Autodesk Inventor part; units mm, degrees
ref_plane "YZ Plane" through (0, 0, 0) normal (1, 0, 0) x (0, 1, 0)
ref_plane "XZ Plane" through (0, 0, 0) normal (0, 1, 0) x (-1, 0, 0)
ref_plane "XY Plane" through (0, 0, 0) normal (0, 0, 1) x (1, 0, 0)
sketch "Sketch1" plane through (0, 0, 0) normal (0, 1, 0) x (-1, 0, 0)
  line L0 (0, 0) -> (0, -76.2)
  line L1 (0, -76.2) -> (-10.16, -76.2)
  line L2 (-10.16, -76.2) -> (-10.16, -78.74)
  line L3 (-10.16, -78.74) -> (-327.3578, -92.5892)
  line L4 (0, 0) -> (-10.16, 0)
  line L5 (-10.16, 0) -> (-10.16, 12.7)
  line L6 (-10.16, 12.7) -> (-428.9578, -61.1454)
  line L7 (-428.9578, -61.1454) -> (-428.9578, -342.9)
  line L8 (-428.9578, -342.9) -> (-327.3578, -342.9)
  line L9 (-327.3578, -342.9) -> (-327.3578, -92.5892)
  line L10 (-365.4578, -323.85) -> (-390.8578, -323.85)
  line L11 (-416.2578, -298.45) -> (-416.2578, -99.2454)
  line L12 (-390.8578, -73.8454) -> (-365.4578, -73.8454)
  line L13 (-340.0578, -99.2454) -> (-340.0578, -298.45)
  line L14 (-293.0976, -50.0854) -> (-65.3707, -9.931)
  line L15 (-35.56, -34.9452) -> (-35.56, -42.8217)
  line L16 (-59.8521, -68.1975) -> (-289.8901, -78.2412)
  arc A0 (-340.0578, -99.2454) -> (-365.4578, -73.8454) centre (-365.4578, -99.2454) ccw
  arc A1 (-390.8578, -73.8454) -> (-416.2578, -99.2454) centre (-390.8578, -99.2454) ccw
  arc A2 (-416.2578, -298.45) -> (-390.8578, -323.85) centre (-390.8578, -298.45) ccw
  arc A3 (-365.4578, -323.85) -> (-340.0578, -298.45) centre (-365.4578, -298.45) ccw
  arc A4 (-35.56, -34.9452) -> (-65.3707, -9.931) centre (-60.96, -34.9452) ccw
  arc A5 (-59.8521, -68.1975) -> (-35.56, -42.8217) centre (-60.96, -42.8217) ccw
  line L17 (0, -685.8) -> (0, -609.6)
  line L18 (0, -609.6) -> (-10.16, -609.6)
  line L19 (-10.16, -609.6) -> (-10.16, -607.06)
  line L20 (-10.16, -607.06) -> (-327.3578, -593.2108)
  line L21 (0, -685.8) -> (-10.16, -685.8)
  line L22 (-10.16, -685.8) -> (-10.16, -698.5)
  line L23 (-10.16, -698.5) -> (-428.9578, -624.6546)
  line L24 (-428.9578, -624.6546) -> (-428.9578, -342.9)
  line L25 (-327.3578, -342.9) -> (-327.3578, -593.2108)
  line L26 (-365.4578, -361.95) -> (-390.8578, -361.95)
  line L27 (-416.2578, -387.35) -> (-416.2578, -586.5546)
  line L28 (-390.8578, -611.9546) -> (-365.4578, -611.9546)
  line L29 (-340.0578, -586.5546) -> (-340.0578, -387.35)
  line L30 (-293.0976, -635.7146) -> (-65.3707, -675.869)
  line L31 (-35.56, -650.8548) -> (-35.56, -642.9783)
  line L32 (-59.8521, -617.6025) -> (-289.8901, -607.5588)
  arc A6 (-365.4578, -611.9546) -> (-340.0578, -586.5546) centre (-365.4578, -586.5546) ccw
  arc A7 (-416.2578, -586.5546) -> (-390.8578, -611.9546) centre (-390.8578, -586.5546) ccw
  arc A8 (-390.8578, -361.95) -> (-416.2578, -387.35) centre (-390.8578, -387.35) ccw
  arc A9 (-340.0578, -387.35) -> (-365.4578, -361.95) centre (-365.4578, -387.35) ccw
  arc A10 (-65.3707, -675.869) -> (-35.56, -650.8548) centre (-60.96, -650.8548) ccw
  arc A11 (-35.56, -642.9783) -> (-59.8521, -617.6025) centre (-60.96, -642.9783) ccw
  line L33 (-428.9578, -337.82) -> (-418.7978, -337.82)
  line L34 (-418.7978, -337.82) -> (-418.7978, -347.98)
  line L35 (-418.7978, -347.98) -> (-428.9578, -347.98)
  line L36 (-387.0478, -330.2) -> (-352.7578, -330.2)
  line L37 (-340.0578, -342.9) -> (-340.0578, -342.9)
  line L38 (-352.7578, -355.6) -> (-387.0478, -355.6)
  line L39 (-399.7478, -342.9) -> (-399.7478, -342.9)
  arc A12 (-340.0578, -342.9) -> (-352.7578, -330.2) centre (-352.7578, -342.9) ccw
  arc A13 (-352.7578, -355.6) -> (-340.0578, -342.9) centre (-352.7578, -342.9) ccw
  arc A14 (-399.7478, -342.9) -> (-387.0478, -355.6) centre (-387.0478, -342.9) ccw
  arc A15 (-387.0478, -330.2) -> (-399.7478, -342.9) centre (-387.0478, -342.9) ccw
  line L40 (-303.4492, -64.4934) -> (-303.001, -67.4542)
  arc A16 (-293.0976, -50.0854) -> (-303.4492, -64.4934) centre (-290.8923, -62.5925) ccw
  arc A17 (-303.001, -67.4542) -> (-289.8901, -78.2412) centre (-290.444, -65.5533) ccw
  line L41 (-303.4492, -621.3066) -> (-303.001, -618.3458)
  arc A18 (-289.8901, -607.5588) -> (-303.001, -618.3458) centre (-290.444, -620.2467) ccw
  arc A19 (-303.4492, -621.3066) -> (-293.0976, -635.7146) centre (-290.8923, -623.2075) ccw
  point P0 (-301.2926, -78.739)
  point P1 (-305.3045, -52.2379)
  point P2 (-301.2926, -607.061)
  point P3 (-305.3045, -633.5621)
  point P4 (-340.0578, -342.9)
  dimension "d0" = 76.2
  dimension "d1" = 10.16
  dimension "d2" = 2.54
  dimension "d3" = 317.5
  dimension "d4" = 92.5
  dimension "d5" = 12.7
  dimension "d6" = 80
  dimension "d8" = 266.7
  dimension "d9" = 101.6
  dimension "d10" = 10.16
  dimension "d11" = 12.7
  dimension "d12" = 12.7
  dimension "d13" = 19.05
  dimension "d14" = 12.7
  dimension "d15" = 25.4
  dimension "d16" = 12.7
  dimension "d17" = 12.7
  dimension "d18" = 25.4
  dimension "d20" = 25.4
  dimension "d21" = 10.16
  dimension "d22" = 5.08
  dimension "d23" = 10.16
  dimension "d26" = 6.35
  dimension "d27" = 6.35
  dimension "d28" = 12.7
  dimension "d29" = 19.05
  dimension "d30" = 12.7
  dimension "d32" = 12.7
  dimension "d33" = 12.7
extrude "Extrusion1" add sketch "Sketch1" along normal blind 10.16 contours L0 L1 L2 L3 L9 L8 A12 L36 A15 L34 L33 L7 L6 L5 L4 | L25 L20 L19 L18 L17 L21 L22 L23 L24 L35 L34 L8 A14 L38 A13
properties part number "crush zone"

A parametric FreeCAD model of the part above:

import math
import FreeCAD as App
import Part
import Sketcher
Q = App.Units.Quantity


def add_polygon(sketch, points):
    """Adds a closed chain of lines whose ends are joined by coincident constraints."""
    first, n = sketch.GeometryCount, len(points)
    for a, b in zip(points, points[1:] + points[:1]):
        sketch.addGeometry(Part.LineSegment(App.Vector(*a, 0), App.Vector(*b, 0)), False)
    for i in range(n):
        sketch.addConstraint(Sketcher.Constraint("Coincident", first + i, 2, first + (i + 1) % n, 1))

doc = App.newDocument("Part")
body = doc.addObject("PartDesign::Body", "Body")

sketch1 = doc.addObject("Sketcher::SketchObject", "Sketch")
body.addObject(sketch1)
sketch1.AttachmentSupport = (doc.XZ_Plane, [""])
sketch1.MapMode = "FlatFace"
add_polygon(sketch1, [(0, -76.2), (0, 0), (10.16, 0), (10.16, 12.7), (428.9578, -61.1454), (428.9578, -337.82), (418.7978, -337.82), (418.7978, -347.98), (428.9578, -347.98), (428.9578, -624.6546), (10.16, -698.5), (10.16, -685.8), (0, -685.8), (0, -609.6), (10.16, -609.6), (10.16, -607.06), (327.3578, -593.2108), (327.3578, -92.5892), (10.16, -78.74), (10.16, -76.2)])
sketch1.addGeometry(Part.ArcOfCircle(Part.Circle(App.Vector(352.7578, -342.9, 0), App.Vector(0, 0, 1), 12.7), math.radians(90), math.radians(270)), False)
sketch1.addGeometry(Part.LineSegment(App.Vector(352.7578, -355.6, 0), App.Vector(387.0478, -355.6, 0)), False)
sketch1.addGeometry(Part.ArcOfCircle(Part.Circle(App.Vector(387.0478, -342.9, 0), App.Vector(0, 0, 1), 12.7), math.radians(-90), math.radians(90)), False)
sketch1.addGeometry(Part.LineSegment(App.Vector(387.0478, -330.2, 0), App.Vector(352.7578, -330.2, 0)), False)
sketch1.addGeometry(Part.ArcOfCircle(Part.Circle(App.Vector(365.4578, -298.45, 0), App.Vector(0, 0, 1), 25.4), math.radians(180), math.radians(270)), False)
sketch1.addGeometry(Part.LineSegment(App.Vector(365.4578, -323.85, 0), App.Vector(390.8578, -323.85, 0)), False)
sketch1.addGeometry(Part.ArcOfCircle(Part.Circle(App.Vector(390.8578, -298.45, 0), App.Vector(0, 0, 1), 25.4), math.radians(-90), math.radians(0)), False)
sketch1.addGeometry(Part.LineSegment(App.Vector(416.2578, -298.45, 0), App.Vector(416.2578, -99.2454, 0)), False)
sketch1.addGeometry(Part.ArcOfCircle(Part.Circle(App.Vector(390.8578, -99.2454, 0), App.Vector(0, 0, 1), 25.4), math.radians(0), math.radians(90)), False)
sketch1.addGeometry(Part.LineSegment(App.Vector(390.8578, -73.8454, 0), App.Vector(365.4578, -73.8454, 0)), False)
sketch1.addGeometry(Part.ArcOfCircle(Part.Circle(App.Vector(365.4578, -99.2454, 0), App.Vector(0, 0, 1), 25.4), math.radians(90), math.radians(180)), False)
sketch1.addGeometry(Part.LineSegment(App.Vector(340.0578, -99.2454, 0), App.Vector(340.0578, -298.45, 0)), False)
sketch1.addGeometry(Part.ArcOfCircle(Part.Circle(App.Vector(290.8923, -62.5925, 0), App.Vector(0, 0, 1), 12.700035), math.radians(-8.608241), math.radians(80.000174)), False)
sketch1.addGeometry(Part.LineSegment(App.Vector(293.0976, -50.0854, 0), App.Vector(65.3707, -9.931, 0)), False)
sketch1.addGeometry(Part.ArcOfCircle(Part.Circle(App.Vector(60.96, -34.9452, 0), App.Vector(0, 0, 1), 25.4), math.radians(79.999952), math.radians(180)), False)
sketch1.addGeometry(Part.LineSegment(App.Vector(35.56, -34.9452, 0), App.Vector(35.56, -42.8217, 0)), False)
sketch1.addGeometry(Part.ArcOfCircle(Part.Circle(App.Vector(60.96, -42.8217, 0), App.Vector(0, 0, 1), 25.399974), math.radians(180), math.radians(267.500071)), False)
sketch1.addGeometry(Part.LineSegment(App.Vector(59.8521, -68.1975, 0), App.Vector(289.8901, -78.2412, 0)), False)
sketch1.addGeometry(Part.ArcOfCircle(Part.Circle(App.Vector(290.444, -65.5533, 0), App.Vector(0, 0, 1), 12.700066), math.radians(-92.499704), math.radians(-8.608173)), False)
sketch1.addGeometry(Part.LineSegment(App.Vector(303.001, -67.4542, 0), App.Vector(303.4492, -64.4934, 0)), False)
sketch1.addGeometry(Part.LineSegment(App.Vector(303.4492, -621.3066, 0), App.Vector(303.001, -618.3458, 0)), False)
sketch1.addGeometry(Part.ArcOfCircle(Part.Circle(App.Vector(290.444, -620.2467, 0), App.Vector(0, 0, 1), 12.699985), math.radians(8.608173), math.radians(92.499704)), False)
sketch1.addGeometry(Part.LineSegment(App.Vector(289.8901, -607.5588, 0), App.Vector(59.8521, -617.6025, 0)), False)
sketch1.addGeometry(Part.ArcOfCircle(Part.Circle(App.Vector(60.96, -642.9783, 0), App.Vector(0, 0, 1), 25.4), math.radians(92.499929), math.radians(180)), False)
sketch1.addGeometry(Part.LineSegment(App.Vector(35.56, -642.9783, 0), App.Vector(35.56, -650.8548, 0)), False)
sketch1.addGeometry(Part.ArcOfCircle(Part.Circle(App.Vector(60.96, -650.8548, 0), App.Vector(0, 0, 1), 25.400088), math.radians(180), math.radians(280.000048)), False)
sketch1.addGeometry(Part.LineSegment(App.Vector(65.3707, -675.869, 0), App.Vector(293.0976, -635.7146, 0)), False)
sketch1.addGeometry(Part.ArcOfCircle(Part.Circle(App.Vector(290.8923, -623.2075, 0), App.Vector(0, 0, 1), 12.699967), math.radians(-80.000174), math.radians(8.608241)), False)
sketch1.addGeometry(Part.LineSegment(App.Vector(390.8578, -361.95, 0), App.Vector(365.4578, -361.95, 0)), False)
sketch1.addGeometry(Part.ArcOfCircle(Part.Circle(App.Vector(365.4578, -387.35, 0), App.Vector(0, 0, 1), 25.4), math.radians(90), math.radians(180)), False)
sketch1.addGeometry(Part.LineSegment(App.Vector(340.0578, -387.35, 0), App.Vector(340.0578, -586.5546, 0)), False)
sketch1.addGeometry(Part.ArcOfCircle(Part.Circle(App.Vector(365.4578, -586.5546, 0), App.Vector(0, 0, 1), 25.4), math.radians(180), math.radians(270)), False)
sketch1.addGeometry(Part.LineSegment(App.Vector(365.4578, -611.9546, 0), App.Vector(390.8578, -611.9546, 0)), False)
sketch1.addGeometry(Part.ArcOfCircle(Part.Circle(App.Vector(390.8578, -586.5546, 0), App.Vector(0, 0, 1), 25.4), math.radians(-90), math.radians(0)), False)
sketch1.addGeometry(Part.LineSegment(App.Vector(416.2578, -586.5546, 0), App.Vector(416.2578, -387.35, 0)), False)
sketch1.addGeometry(Part.ArcOfCircle(Part.Circle(App.Vector(390.8578, -387.35, 0), App.Vector(0, 0, 1), 25.4), math.radians(0), math.radians(90)), False)
sketch1.addConstraint(Sketcher.Constraint("Coincident", 20, 2, 21, 1))
sketch1.addConstraint(Sketcher.Constraint("Coincident", 21, 2, 22, 1))
sketch1.addConstraint(Sketcher.Constraint("Coincident", 22, 2, 23, 1))
sketch1.addConstraint(Sketcher.Constraint("Coincident", 23, 2, 20, 1))
sketch1.addConstraint(Sketcher.Constraint("Coincident", 24, 2, 25, 1))
sketch1.addConstraint(Sketcher.Constraint("Coincident", 25, 2, 26, 1))
sketch1.addConstraint(Sketcher.Constraint("Coincident", 26, 2, 27, 1))
sketch1.addConstraint(Sketcher.Constraint("Coincident", 27, 2, 28, 1))
sketch1.addConstraint(Sketcher.Constraint("Coincident", 28, 2, 29, 1))
sketch1.addConstraint(Sketcher.Constraint("Coincident", 29, 2, 30, 1))
sketch1.addConstraint(Sketcher.Constraint("Coincident", 30, 2, 31, 1))
sketch1.addConstraint(Sketcher.Constraint("Coincident", 31, 2, 24, 1))
sketch1.addConstraint(Sketcher.Constraint("Coincident", 32, 2, 33, 1))
sketch1.addConstraint(Sketcher.Constraint("Coincident", 33, 2, 34, 1))
sketch1.addConstraint(Sketcher.Constraint("Coincident", 34, 2, 35, 1))
sketch1.addConstraint(Sketcher.Constraint("Coincident", 35, 2, 36, 1))
sketch1.addConstraint(Sketcher.Constraint("Coincident", 36, 2, 37, 1))
sketch1.addConstraint(Sketcher.Constraint("Coincident", 37, 2, 38, 1))
sketch1.addConstraint(Sketcher.Constraint("Coincident", 38, 2, 39, 1))
sketch1.addConstraint(Sketcher.Constraint("Coincident", 39, 2, 32, 1))
sketch1.addConstraint(Sketcher.Constraint("Coincident", 40, 2, 41, 1))
sketch1.addConstraint(Sketcher.Constraint("Coincident", 41, 2, 42, 1))
sketch1.addConstraint(Sketcher.Constraint("Coincident", 42, 2, 43, 1))
sketch1.addConstraint(Sketcher.Constraint("Coincident", 43, 2, 44, 1))
sketch1.addConstraint(Sketcher.Constraint("Coincident", 44, 2, 45, 1))
sketch1.addConstraint(Sketcher.Constraint("Coincident", 45, 2, 46, 1))
sketch1.addConstraint(Sketcher.Constraint("Coincident", 46, 2, 47, 1))
sketch1.addConstraint(Sketcher.Constraint("Coincident", 47, 2, 40, 1))
sketch1.addConstraint(Sketcher.Constraint("Coincident", 48, 2, 49, 1))
sketch1.addConstraint(Sketcher.Constraint("Coincident", 49, 2, 50, 1))
sketch1.addConstraint(Sketcher.Constraint("Coincident", 50, 2, 51, 1))
sketch1.addConstraint(Sketcher.Constraint("Coincident", 51, 2, 52, 1))
sketch1.addConstraint(Sketcher.Constraint("Coincident", 52, 2, 53, 1))
sketch1.addConstraint(Sketcher.Constraint("Coincident", 53, 2, 54, 1))
sketch1.addConstraint(Sketcher.Constraint("Coincident", 54, 2, 55, 1))
sketch1.addConstraint(Sketcher.Constraint("Coincident", 55, 2, 48, 1))
sketch1.addConstraint(Sketcher.Constraint("Vertical", 0))
sketch1.addConstraint(Sketcher.Constraint("Horizontal", 1))
sketch1.addConstraint(Sketcher.Constraint("Vertical", 2))
sketch1.addConstraint(Sketcher.Constraint("Vertical", 4))
sketch1.addConstraint(Sketcher.Constraint("Horizontal", 5))
sketch1.addConstraint(Sketcher.Constraint("Vertical", 6))
sketch1.addConstraint(Sketcher.Constraint("Horizontal", 7))
sketch1.addConstraint(Sketcher.Constraint("Vertical", 8))
sketch1.addConstraint(Sketcher.Constraint("Vertical", 10))
sketch1.addConstraint(Sketcher.Constraint("Horizontal", 11))
sketch1.addConstraint(Sketcher.Constraint("Vertical", 12))
sketch1.addConstraint(Sketcher.Constraint("Horizontal", 13))
sketch1.addConstraint(Sketcher.Constraint("Vertical", 14))
sketch1.addConstraint(Sketcher.Constraint("Vertical", 16))
sketch1.addConstraint(Sketcher.Constraint("Vertical", 18))
sketch1.addConstraint(Sketcher.Constraint("Horizontal", 19))
sketch1.addConstraint(Sketcher.Constraint("Horizontal", 21))
sketch1.addConstraint(Sketcher.Constraint("Horizontal", 23))
sketch1.addConstraint(Sketcher.Constraint("Horizontal", 25))
sketch1.addConstraint(Sketcher.Constraint("Vertical", 27))
sketch1.addConstraint(Sketcher.Constraint("Horizontal", 29))
sketch1.addConstraint(Sketcher.Constraint("Vertical", 31))
sketch1.addConstraint(Sketcher.Constraint("Vertical", 35))
sketch1.addConstraint(Sketcher.Constraint("Vertical", 44))
sketch1.addConstraint(Sketcher.Constraint("Horizontal", 48))
sketch1.addConstraint(Sketcher.Constraint("Vertical", 50))
sketch1.addConstraint(Sketcher.Constraint("Horizontal", 52))
sketch1.addConstraint(Sketcher.Constraint("Vertical", 54))
sketch1.addConstraint(Sketcher.Constraint("Coincident", 0, 2, -1, 1))
sketch1.addConstraint(Sketcher.Constraint("PointOnObject", 11, 2, -2))
sketch1.addConstraint(Sketcher.Constraint("Radius", 24, Q("1 in")))
sketch1.addConstraint(Sketcher.Constraint("Radius", 26, Q("1 in")))
sketch1.addConstraint(Sketcher.Constraint("Radius", 28, Q("1 in")))
sketch1.addConstraint(Sketcher.Constraint("Radius", 30, Q("1 in")))
sketch1.addConstraint(Sketcher.Constraint("Radius", 34, Q("1 in")))
sketch1.addConstraint(Sketcher.Constraint("Radius", 36, Q("1 in")))
sketch1.addConstraint(Sketcher.Constraint("Radius", 43, Q("1 in")))
sketch1.addConstraint(Sketcher.Constraint("Radius", 45, Q("1 in")))
sketch1.addConstraint(Sketcher.Constraint("Radius", 49, Q("1 in")))
sketch1.addConstraint(Sketcher.Constraint("Radius", 51, Q("1 in")))
sketch1.addConstraint(Sketcher.Constraint("Radius", 53, Q("1 in")))
sketch1.addConstraint(Sketcher.Constraint("Radius", 55, Q("1 in")))
sketch1.addConstraint(Sketcher.Constraint("Radius", 20, Q("0.5 in")))
sketch1.addConstraint(Sketcher.Constraint("Radius", 32, Q("0.5 in")))
sketch1.addConstraint(Sketcher.Constraint("Radius", 38, Q("0.5 in")))
sketch1.addConstraint(Sketcher.Constraint("Radius", 41, Q("0.5 in")))
sketch1.addConstraint(Sketcher.Constraint("Radius", 47, Q("0.5 in")))
sketch1.addConstraint(Sketcher.Constraint("DistanceX", 25, 1, 25, 2, Q("1 in")))
sketch1.addConstraint(Sketcher.Constraint("DistanceX", 29, 2, 29, 1, Q("1 in")))
sketch1.addConstraint(Sketcher.Constraint("DistanceX", 48, 2, 48, 1, Q("1 in")))
sketch1.addConstraint(Sketcher.Constraint("DistanceX", 52, 1, 52, 2, Q("1 in")))
sketch1.addConstraint(Sketcher.Constraint("DistanceY", 0, 1, 0, 2, Q("3 in")))
sketch1.addConstraint(Sketcher.Constraint("DistanceY", 12, 1, 12, 2, Q("3 in")))
sketch1.addConstraint(Sketcher.Constraint("DistanceX", 1, 1, 1, 2, Q("0.4 in")))
sketch1.addConstraint(Sketcher.Constraint("DistanceX", 5, 2, 5, 1, Q("0.4 in")))
sketch1.addConstraint(Sketcher.Constraint("DistanceX", 7, 1, 7, 2, Q("0.4 in")))
sketch1.addConstraint(Sketcher.Constraint("DistanceX", 11, 2, 11, 1, Q("0.4 in")))
sketch1.addConstraint(Sketcher.Constraint("DistanceX", 13, 1, 13, 2, Q("0.4 in")))
sketch1.addConstraint(Sketcher.Constraint("DistanceX", 19, 2, 19, 1, Q("0.4 in")))
sketch1.addConstraint(Sketcher.Constraint("DistanceY", 2, 1, 2, 2, Q("0.5 in")))
sketch1.addConstraint(Sketcher.Constraint("DistanceY", 6, 2, 6, 1, Q("0.4 in")))
sketch1.addConstraint(Sketcher.Constraint("DistanceY", 10, 1, 10, 2, Q("0.5 in")))
sketch1.addConstraint(Sketcher.Constraint("DistanceY", 14, 1, 14, 2, Q("0.1 in")))
sketch1.addConstraint(Sketcher.Constraint("DistanceY", 18, 1, 18, 2, Q("0.1 in")))
sketch1.addConstraint(Sketcher.Constraint("Distance", 15, Q("12.5 in")))
sketch1.addConstraint(Sketcher.Constraint("Distance", 17, Q("12.5 in")))
sketch1.addConstraint(Sketcher.Constraint("DistanceY", 10, 2, -1, 1, Q("27 in")))
sketch1.addConstraint(Sketcher.Constraint("DistanceY", 20, 2, -1, 1, Q("14 in")))
sketch1.addConstraint(Sketcher.Constraint("DistanceX", 21, 1, 21, 2, Q("1.35 in")))
sketch1.addConstraint(Sketcher.Constraint("DistanceX", 23, 2, 23, 1, Q("1.35 in")))
sketch1.addConstraint(Sketcher.Constraint("DistanceX", -1, 1, 34, 3, Q("2.4 in")))
sketch1.addConstraint(Sketcher.Constraint("DistanceX", -1, 1, 43, 3, Q("2.4 in")))
sketch1.addConstraint(Sketcher.Constraint("DistanceY", 4, 2, -1, 1, Q("13.3 in")))
sketch1.addConstraint(Sketcher.Constraint("DistanceY", 24, 3, -1, 1, Q("11.75 in")))
sketch1.addConstraint(Sketcher.Constraint("DistanceY", 49, 3, -1, 1, Q("15.25 in")))
sketch1.addConstraint(Sketcher.Constraint("DistanceY", 26, 2, -1, 1, Q("11.75 in")))
sketch1.addConstraint(Sketcher.Constraint("DistanceY", 31, 2, -1, 1, Q("11.75 in")))
sketch1.addConstraint(Sketcher.Constraint("DistanceY", 49, 2, -1, 1, Q("15.25 in")))
sketch1.addConstraint(Sketcher.Constraint("DistanceY", 54, 2, -1, 1, Q("15.25 in")))
sketch1.addConstraint(Sketcher.Constraint("DistanceY", 4, 2, 4, 1, Q("10.8927 in")))
sketch1.addConstraint(Sketcher.Constraint("DistanceY", 8, 2, 8, 1, Q("10.8927 in")))
sketch1.addConstraint(Sketcher.Constraint("DistanceY", 16, 1, 16, 2, Q("19.7095 in")))
sketch1.addConstraint(Sketcher.Constraint("DistanceY", 27, 1, 27, 2, Q("7.8427 in")))
sketch1.addConstraint(Sketcher.Constraint("DistanceY", 31, 2, 31, 1, Q("7.8427 in")))
sketch1.addConstraint(Sketcher.Constraint("DistanceY", 35, 2, 35, 1, Q("0.3101 in")))
sketch1.addConstraint(Sketcher.Constraint("DistanceY", 44, 2, 44, 1, Q("0.3101 in")))
sketch1.addConstraint(Sketcher.Constraint("DistanceY", 50, 2, 50, 1, Q("7.8427 in")))
sketch1.addConstraint(Sketcher.Constraint("DistanceY", 54, 1, 54, 2, Q("7.8427 in")))
sketch1.addConstraint(Sketcher.Constraint("DistanceX", -1, 1, 37, 2, Q("11.413 in")))
sketch1.addConstraint(Sketcher.Constraint("DistanceX", -1, 1, 41, 2, Q("11.413 in")))
sketch1.addConstraint(Sketcher.Constraint("Distance", 39, Q("0.1179 in")))
sketch1.addConstraint(Sketcher.Constraint("Distance", 40, Q("0.1179 in")))
sketch1.addConstraint(Sketcher.Constraint("DistanceX", -1, 1, 20, 3, Q("13.8881 in")))
sketch1.addConstraint(Sketcher.Constraint("DistanceX", -1, 1, 22, 3, Q("15.2381 in")))
sketch1.addConstraint(Sketcher.Constraint("DistanceX", -1, 1, 24, 3, Q("14.3881 in")))
sketch1.addConstraint(Sketcher.Constraint("DistanceX", -1, 1, 26, 3, Q("15.3881 in")))
sketch1.addConstraint(Sketcher.Constraint("DistanceY", 28, 3, -1, 1, Q("3.9073 in")))
sketch1.addConstraint(Sketcher.Constraint("DistanceY", 34, 3, -1, 1, Q("1.3758 in")))
sketch1.addConstraint(Sketcher.Constraint("DistanceY", 36, 3, -1, 1, Q("1.6859 in")))
sketch1.addConstraint(Sketcher.Constraint("DistanceX", -1, 1, 38, 3, Q("11.4348 in")))
sketch1.addConstraint(Sketcher.Constraint("DistanceX", -1, 1, 41, 3, Q("11.4348 in")))
sketch1.addConstraint(Sketcher.Constraint("DistanceY", 43, 3, -1, 1, Q("25.3141 in")))
sketch1.addConstraint(Sketcher.Constraint("DistanceY", 45, 3, -1, 1, Q("25.6242 in")))
sketch1.addConstraint(Sketcher.Constraint("DistanceX", -1, 1, 49, 3, Q("14.3881 in")))
sketch1.addConstraint(Sketcher.Constraint("DistanceY", 51, 3, -1, 1, Q("23.0927 in")))
sketch1.addConstraint(Sketcher.Constraint("DistanceX", -1, 1, 53, 3, Q("15.3881 in")))
sketch1.addConstraint(Sketcher.Constraint("DistanceX", -1, 1, 3, 2, Q("16.8881 in")))
sketch1.addConstraint(Sketcher.Constraint("DistanceX", -1, 1, 20, 2, Q("13.8881 in")))
sketch1.addConstraint(Sketcher.Constraint("DistanceX", -1, 1, 22, 2, Q("15.2381 in")))
sketch1.addConstraint(Sketcher.Constraint("DistanceX", -1, 1, 24, 2, Q("14.3881 in")))
sketch1.addConstraint(Sketcher.Constraint("DistanceX", -1, 1, 28, 2, Q("15.3881 in")))
sketch1.addConstraint(Sketcher.Constraint("DistanceY", 34, 2, -1, 1, Q("1.3758 in")))
sketch1.addConstraint(Sketcher.Constraint("DistanceY", 39, 2, -1, 1, Q("2.5391 in")))
sketch1.addConstraint(Sketcher.Constraint("DistanceY", 43, 2, -1, 1, Q("25.3141 in")))
sketch1.addConstraint(Sketcher.Constraint("DistanceY", 47, 2, -1, 1, Q("24.4609 in")))
sketch1.addConstraint(Sketcher.Constraint("DistanceX", -1, 1, 48, 2, Q("14.3881 in")))
sketch1.addConstraint(Sketcher.Constraint("DistanceX", -1, 1, 51, 2, Q("14.3881 in")))
sketch1.addConstraint(Sketcher.Constraint("Distance", 33, 231.24))
sketch1.addConstraint(Sketcher.Constraint("Distance", 37, 230.2572))
sketch1.addConstraint(Sketcher.Constraint("Distance", 42, 230.2572))
sketch1.addConstraint(Sketcher.Constraint("Distance", 46, 231.24))
sketch1.addConstraint(Sketcher.Constraint("DistanceX", -1, 1, 32, 3, 290.8923))
sketch1.addConstraint(Sketcher.Constraint("DistanceY", 32, 3, -1, 1, 62.5925))
sketch1.addConstraint(Sketcher.Constraint("DistanceY", 38, 3, -1, 1, 65.5533))
sketch1.addConstraint(Sketcher.Constraint("DistanceY", 41, 3, -1, 1, 620.2467))
sketch1.addConstraint(Sketcher.Constraint("DistanceX", -1, 1, 47, 3, 290.8923))
sketch1.addConstraint(Sketcher.Constraint("DistanceY", 47, 3, -1, 1, 623.2075))
sketch1.addConstraint(Sketcher.Constraint("DistanceX", -1, 1, 32, 2, 293.0976))
sketch1.addConstraint(Sketcher.Constraint("DistanceX", -1, 1, 45, 2, 65.3707))
pad1 = doc.addObject("PartDesign::Pad", "Pad")
body.addObject(pad1)
pad1.Profile = sketch1
pad1.Length = Q("0.4 in")
pad1.Reversed = True

doc.recompute()
